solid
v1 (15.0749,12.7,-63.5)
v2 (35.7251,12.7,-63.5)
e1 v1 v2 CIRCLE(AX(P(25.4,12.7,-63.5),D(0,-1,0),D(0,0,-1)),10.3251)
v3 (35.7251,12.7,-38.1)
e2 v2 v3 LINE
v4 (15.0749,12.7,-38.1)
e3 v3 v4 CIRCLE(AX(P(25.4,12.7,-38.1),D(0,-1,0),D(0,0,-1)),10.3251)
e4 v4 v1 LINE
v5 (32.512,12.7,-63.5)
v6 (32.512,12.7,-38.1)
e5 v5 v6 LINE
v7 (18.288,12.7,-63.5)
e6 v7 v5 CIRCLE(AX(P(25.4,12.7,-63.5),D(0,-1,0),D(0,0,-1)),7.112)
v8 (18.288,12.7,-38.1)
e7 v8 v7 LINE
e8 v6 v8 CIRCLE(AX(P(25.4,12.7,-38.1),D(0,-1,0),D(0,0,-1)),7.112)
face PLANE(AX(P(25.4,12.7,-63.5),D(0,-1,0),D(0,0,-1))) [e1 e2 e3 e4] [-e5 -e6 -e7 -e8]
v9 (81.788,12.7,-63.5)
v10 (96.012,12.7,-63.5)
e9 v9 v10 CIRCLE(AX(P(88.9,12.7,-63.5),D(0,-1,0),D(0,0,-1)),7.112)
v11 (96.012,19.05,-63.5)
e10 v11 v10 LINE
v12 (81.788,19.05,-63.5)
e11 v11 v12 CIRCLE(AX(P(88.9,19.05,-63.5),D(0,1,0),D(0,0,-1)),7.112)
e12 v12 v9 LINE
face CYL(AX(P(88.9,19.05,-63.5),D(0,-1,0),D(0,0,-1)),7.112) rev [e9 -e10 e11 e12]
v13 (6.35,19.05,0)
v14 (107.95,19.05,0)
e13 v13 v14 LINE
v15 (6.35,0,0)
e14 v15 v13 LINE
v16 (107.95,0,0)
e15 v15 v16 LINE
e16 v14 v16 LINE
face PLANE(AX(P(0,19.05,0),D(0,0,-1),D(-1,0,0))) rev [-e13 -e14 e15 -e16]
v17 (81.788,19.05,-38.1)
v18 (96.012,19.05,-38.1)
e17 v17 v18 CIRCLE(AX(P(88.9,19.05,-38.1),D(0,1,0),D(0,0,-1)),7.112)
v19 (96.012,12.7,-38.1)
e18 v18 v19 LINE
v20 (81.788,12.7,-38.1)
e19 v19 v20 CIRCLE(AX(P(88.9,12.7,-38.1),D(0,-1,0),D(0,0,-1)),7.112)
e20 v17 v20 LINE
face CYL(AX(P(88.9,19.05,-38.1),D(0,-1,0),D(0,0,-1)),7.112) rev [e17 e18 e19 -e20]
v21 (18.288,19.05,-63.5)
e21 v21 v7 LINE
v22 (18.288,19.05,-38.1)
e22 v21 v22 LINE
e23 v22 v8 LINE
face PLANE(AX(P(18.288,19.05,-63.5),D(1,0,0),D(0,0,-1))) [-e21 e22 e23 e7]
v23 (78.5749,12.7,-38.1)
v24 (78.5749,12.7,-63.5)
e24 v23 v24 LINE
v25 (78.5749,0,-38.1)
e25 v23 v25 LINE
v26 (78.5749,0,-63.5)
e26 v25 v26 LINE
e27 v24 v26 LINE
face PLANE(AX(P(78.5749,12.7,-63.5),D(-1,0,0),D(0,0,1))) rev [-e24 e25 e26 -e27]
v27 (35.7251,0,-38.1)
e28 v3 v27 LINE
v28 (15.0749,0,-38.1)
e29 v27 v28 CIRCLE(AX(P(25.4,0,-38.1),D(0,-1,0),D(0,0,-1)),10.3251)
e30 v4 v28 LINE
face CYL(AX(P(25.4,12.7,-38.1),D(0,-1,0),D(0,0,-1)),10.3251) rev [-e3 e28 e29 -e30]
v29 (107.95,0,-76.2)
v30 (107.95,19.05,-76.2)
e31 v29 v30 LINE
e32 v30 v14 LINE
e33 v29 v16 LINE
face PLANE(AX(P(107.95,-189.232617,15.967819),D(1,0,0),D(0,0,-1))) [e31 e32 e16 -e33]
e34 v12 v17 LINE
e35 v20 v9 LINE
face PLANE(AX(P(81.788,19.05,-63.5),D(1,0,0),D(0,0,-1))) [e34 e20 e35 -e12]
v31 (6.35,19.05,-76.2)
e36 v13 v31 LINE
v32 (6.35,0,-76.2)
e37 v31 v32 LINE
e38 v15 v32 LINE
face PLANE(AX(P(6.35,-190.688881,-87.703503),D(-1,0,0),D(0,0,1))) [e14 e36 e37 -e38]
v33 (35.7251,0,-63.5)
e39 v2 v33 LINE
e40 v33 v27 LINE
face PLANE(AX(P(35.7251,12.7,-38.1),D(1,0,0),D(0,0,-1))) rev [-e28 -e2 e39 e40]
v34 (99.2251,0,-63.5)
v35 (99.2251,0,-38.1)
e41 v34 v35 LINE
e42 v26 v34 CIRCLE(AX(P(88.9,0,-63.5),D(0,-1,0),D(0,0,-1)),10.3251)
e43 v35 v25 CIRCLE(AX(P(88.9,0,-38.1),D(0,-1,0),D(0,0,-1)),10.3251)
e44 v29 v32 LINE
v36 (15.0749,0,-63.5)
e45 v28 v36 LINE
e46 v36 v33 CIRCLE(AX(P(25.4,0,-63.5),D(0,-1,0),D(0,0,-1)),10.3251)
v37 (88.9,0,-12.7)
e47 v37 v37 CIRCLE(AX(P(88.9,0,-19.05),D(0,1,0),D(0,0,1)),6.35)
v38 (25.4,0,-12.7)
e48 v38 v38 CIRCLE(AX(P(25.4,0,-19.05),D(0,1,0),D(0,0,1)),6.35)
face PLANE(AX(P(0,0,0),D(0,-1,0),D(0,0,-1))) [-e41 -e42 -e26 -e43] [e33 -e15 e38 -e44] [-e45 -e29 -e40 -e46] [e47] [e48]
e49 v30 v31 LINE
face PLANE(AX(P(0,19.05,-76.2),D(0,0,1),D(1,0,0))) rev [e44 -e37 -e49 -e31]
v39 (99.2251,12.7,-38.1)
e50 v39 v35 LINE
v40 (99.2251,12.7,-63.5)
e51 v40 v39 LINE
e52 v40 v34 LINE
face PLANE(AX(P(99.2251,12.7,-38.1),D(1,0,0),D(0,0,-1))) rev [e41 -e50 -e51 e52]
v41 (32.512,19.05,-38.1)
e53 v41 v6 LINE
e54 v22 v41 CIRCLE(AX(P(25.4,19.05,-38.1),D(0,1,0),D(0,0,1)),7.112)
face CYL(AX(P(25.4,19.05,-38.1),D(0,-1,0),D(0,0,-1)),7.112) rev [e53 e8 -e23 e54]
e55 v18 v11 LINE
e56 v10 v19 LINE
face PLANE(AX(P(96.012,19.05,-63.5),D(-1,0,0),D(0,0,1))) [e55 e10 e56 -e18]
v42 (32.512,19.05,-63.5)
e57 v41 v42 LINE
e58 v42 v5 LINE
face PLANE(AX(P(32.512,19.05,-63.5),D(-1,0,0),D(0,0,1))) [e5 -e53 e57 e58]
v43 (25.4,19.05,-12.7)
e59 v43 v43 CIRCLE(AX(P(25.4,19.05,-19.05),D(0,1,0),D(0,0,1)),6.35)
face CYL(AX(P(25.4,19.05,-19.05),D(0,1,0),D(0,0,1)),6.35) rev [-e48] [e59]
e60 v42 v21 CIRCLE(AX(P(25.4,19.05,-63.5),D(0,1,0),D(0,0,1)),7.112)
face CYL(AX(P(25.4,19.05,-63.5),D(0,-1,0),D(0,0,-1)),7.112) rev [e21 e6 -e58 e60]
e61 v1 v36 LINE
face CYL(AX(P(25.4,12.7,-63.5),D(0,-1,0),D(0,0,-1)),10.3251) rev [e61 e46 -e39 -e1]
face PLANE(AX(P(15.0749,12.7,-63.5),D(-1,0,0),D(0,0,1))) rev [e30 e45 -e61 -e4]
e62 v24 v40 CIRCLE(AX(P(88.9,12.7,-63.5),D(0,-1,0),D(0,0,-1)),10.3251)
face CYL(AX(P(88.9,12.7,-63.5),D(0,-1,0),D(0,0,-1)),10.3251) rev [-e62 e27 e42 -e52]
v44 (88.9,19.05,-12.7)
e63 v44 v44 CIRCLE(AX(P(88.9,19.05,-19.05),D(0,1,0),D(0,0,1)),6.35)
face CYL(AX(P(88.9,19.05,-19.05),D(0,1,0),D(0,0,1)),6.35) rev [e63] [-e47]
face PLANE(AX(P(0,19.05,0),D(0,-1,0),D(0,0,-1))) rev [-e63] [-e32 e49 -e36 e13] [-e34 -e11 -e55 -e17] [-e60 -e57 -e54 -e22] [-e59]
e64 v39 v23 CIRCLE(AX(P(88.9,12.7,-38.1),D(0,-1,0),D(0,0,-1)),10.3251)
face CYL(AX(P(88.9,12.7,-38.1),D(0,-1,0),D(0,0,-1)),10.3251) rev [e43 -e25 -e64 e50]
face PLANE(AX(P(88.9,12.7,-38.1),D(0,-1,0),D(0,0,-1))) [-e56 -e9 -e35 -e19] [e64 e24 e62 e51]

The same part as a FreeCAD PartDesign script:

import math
import FreeCAD as App
import Part
import Sketcher

V = App.Vector
Q = App.Units.Quantity

doc = App.newDocument("Part")
body = doc.addObject("PartDesign::Body", "Body")

sketch1 = body.newObject("Sketcher::SketchObject", "Sketch")
sketch1.AttachmentSupport = (doc.getObject("XZ_Plane"), [""])
sketch1.MapMode = "FlatFace"
sketch1.addGeometry([
    Part.LineSegment(V(0, -76, 0), V(0, 0, 0)),
    Part.LineSegment(V(0, 0, 0), V(114, 0, 0)),
    Part.LineSegment(V(114, 0, 0), V(114, -76, 0)),
    Part.LineSegment(V(114, -76, 0), V(0, -76, 0)),
    Part.ArcOfCircle(Part.Circle(V(89, -64, 0), V(0, 0, 1), 7), math.radians(180), math.radians(360)),
    Part.LineSegment(V(96, -64, 0), V(96, -38, 0)),
    Part.ArcOfCircle(Part.Circle(V(89, -38, 0), V(0, 0, 1), 7), math.radians(0), math.radians(180)),
    Part.LineSegment(V(82, -38, 0), V(82, -64, 0)),
    Part.LineSegment(V(18, -38, 0), V(18, -64, 0)),
    Part.ArcOfCircle(Part.Circle(V(25, -64, 0), V(0, 0, 1), 7), math.radians(180), math.radians(360)),
    Part.LineSegment(V(33, -64, 0), V(33, -38, 0)),
    Part.ArcOfCircle(Part.Circle(V(25, -38, 0), V(0, 0, 1), 7), math.radians(0), math.radians(180)),
], False)
sketch1.addConstraint([
    Sketcher.Constraint("Coincident", 0, 2, 1, 1),
    Sketcher.Constraint("Coincident", 1, 2, 2, 1),
    Sketcher.Constraint("Coincident", 2, 2, 3, 1),
    Sketcher.Constraint("Coincident", 3, 2, 0, 1),
    Sketcher.Constraint("Tangent", 4, 2, 5, 1),
    Sketcher.Constraint("Tangent", 5, 2, 6, 1),
    Sketcher.Constraint("Tangent", 6, 2, 7, 1),
    Sketcher.Constraint("Tangent", 7, 2, 4, 1),
    Sketcher.Constraint("Tangent", 8, 2, 9, 1),
    Sketcher.Constraint("Tangent", 9, 2, 10, 1),
    Sketcher.Constraint("Tangent", 10, 2, 11, 1),
    Sketcher.Constraint("Tangent", 11, 2, 8, 1),
    Sketcher.Constraint("Vertical", 0),
    Sketcher.Constraint("Horizontal", 1),
    Sketcher.Constraint("Vertical", 2),
    Sketcher.Constraint("Horizontal", 3),
    Sketcher.Constraint("Vertical", 5),
    Sketcher.Constraint("Vertical", 7),
    Sketcher.Constraint("Vertical", 8),
    Sketcher.Constraint("Vertical", 10),
    Sketcher.Constraint("Coincident", 0, 2, -1, 1),
    Sketcher.Constraint("Equal", 6, 9),
    Sketcher.Constraint("Horizontal", 4, 3, 9, 3),
    Sketcher.Constraint("Horizontal", 6, 3, 11, 3),
    Sketcher.Constraint("DistanceY", 0, 1, 0, 2, Q("3 in")),
    Sketcher.Constraint("DistanceY", 5, 1, 5, 2, Q("1 in")),
    Sketcher.Constraint("Radius", 4, Q("0.28 in")),
    Sketcher.Constraint("DistanceX", 1, 1, 1, 2, Q("4.5 in")),
    Sketcher.Constraint("DistanceX", -1, 1, 9, 3, Q("1 in")),
    Sketcher.Constraint("DistanceX", 6, 3, 1, 2, Q("1 in")),
    Sketcher.Constraint("DistanceY", 4, 3, -1, 1, Q("2.5 in")),
])
pad1 = body.newObject("PartDesign::Pad", "Pad")
pad1.Profile = sketch1
pad1.Length = Q("0.75 in")
pad1.Reversed = True

sketch2 = body.newObject("Sketcher::SketchObject", "Sketch001")
sketch2.AttachmentSupport = (doc.getObject("XZ_Plane"), [""])
sketch2.MapMode = "FlatFace"
sketch2.AttachmentOffset = App.Placement(V(0, 0, -0.75 * 25.4), App.Rotation())
sketch2.addGeometry([
    Part.Circle(V(25, -19, 0), V(0, 0, 1), 6),
    Part.Circle(V(89, -19, 0), V(0, 0, 1), 6),
], False)
sketch2.addConstraint([
    Sketcher.Constraint("Equal", 0, 1),
    Sketcher.Constraint("Horizontal", 0, 3, 1, 3),
    Sketcher.Constraint("Diameter", 0, Q("0.5 in")),
    Sketcher.Constraint("DistanceX", -1, 1, 0, 3, Q("1 in")),
    Sketcher.Constraint("DistanceX", -1, 1, 1, 3, Q("3.5 in")),
    Sketcher.Constraint("DistanceY", 0, 3, -1, 1, Q("0.75 in")),
])
doc.recompute()
hole = body.newObject("PartDesign::Hole", "Hole")
hole.Profile = sketch2
hole.ThreadType = "None"
hole.Diameter = Q("0.5 in")
hole.DepthType = "ThroughAll"
hole.Reversed = True

sketch3 = body.newObject("Sketcher::SketchObject", "Sketch002")
sketch3.AttachmentSupport = (doc.getObject("XZ_Plane"), [""])
sketch3.MapMode = "FlatFace"
sketch3.addGeometry([
    Part.LineSegment(V(15, -38, 0), V(15, -64, 0)),
    Part.ArcOfCircle(Part.Circle(V(25, -64, 0), V(0, 0, 1), 10), math.radians(180), math.radians(360)),
    Part.LineSegment(V(36, -64, 0), V(36, -38, 0)),
    Part.ArcOfCircle(Part.Circle(V(25, -38, 0), V(0, 0, 1), 10), math.radians(0), math.radians(180)),
], False)
sketch3.addConstraint([
    Sketcher.Constraint("Tangent", 0, 2, 1, 1),
    Sketcher.Constraint("Tangent", 1, 2, 2, 1),
    Sketcher.Constraint("Tangent", 2, 2, 3, 1),
    Sketcher.Constraint("Tangent", 3, 2, 0, 1),
    Sketcher.Constraint("Vertical", 0),
    Sketcher.Constraint("Vertical", 2),
    Sketcher.Constraint("DistanceY", 0, 2, 0, 1, Q("1 in")),
    Sketcher.Constraint("DistanceX", -1, 1, 1, 3, Q("1 in")),
    Sketcher.Constraint("DistanceY", 1, 3, -1, 1, Q("2.5 in")),
    Sketcher.Constraint("Radius", 1, Q("0.4065 in")),
])
pocket1 = body.newObject("PartDesign::Pocket", "Pocket")
pocket1.Profile = sketch3
pocket1.Length = Q("0.5 in")

sketch4 = body.newObject("Sketcher::SketchObject", "Sketch003")
sketch4.AttachmentSupport = (doc.getObject("XZ_Plane"), [""])
sketch4.MapMode = "FlatFace"
sketch4.addGeometry([
    Part.LineSegment(V(99, -64, 0), V(99, -38, 0)),
    Part.ArcOfCircle(Part.Circle(V(89, -38, 0), V(0, 0, 1), 10), math.radians(0), math.radians(180)),
    Part.LineSegment(V(79, -38, 0), V(79, -64, 0)),
    Part.ArcOfCircle(Part.Circle(V(89, -64, 0), V(0, 0, 1), 10), math.radians(180), math.radians(360)),
], False)
sketch4.addConstraint([
    Sketcher.Constraint("Tangent", 0, 2, 1, 1),
    Sketcher.Constraint("Tangent", 1, 2, 2, 1),
    Sketcher.Constraint("Tangent", 2, 2, 3, 1),
    Sketcher.Constraint("Tangent", 3, 2, 0, 1),
    Sketcher.Constraint("Vertical", 0),
    Sketcher.Constraint("Vertical", 2),
    Sketcher.Constraint("DistanceY", 0, 1, 0, 2, Q("1 in")),
    Sketcher.Constraint("DistanceX", -1, 1, 1, 3, Q("3.5 in")),
    Sketcher.Constraint("DistanceY", 1, 3, -1, 1, Q("1.5 in")),
    Sketcher.Constraint("Radius", 1, Q("0.4065 in")),
])
pocket2 = body.newObject("PartDesign::Pocket", "Pocket001")
pocket2.Profile = sketch4
pocket2.Length = Q("0.5 in")

sketch5 = body.newObject("Sketcher::SketchObject", "Sketch004")
sketch5.AttachmentSupport = (doc.getObject("XZ_Plane"), [""])
sketch5.MapMode = "FlatFace"
sketch5.addGeometry([
    Part.LineSegment(V(108, 0, 0), V(108, -76, 0)),
    Part.LineSegment(V(108, -76, 0), V(114, -76, 0)),
    Part.LineSegment(V(114, -76, 0), V(114, 0, 0)),
    Part.LineSegment(V(114, 0, 0), V(108, 0, 0)),
], False)
sketch5.addConstraint([
    Sketcher.Constraint("Coincident", 0, 2, 1, 1),
    Sketcher.Constraint("Coincident", 1, 2, 2, 1),
    Sketcher.Constraint("Coincident", 2, 2, 3, 1),
    Sketcher.Constraint("Coincident", 3, 2, 0, 1),
    Sketcher.Constraint("Vertical", 0),
    Sketcher.Constraint("Horizontal", 1),
    Sketcher.Constraint("Vertical", 2),
    Sketcher.Constraint("Horizontal", 3),
    Sketcher.Constraint("PointOnObject", 2, 2, -1),
    Sketcher.Constraint("DistanceY", 0, 2, 0, 1, Q("3 in")),
    Sketcher.Constraint("DistanceX", 1, 1, 1, 2, Q("0.25 in")),
    Sketcher.Constraint("DistanceX", -1, 1, 1, 2, Q("4.5 in")),
])
pocket3 = body.newObject("PartDesign::Pocket", "Pocket002")
pocket3.Profile = sketch5
pocket3.Type = "ThroughAll"
pocket3.Midplane = True

sketch6 = body.newObject("Sketcher::SketchObject", "Sketch005")
sketch6.AttachmentSupport = (doc.getObject("XZ_Plane"), [""])
sketch6.MapMode = "FlatFace"
sketch6.addGeometry([
    Part.LineSegment(V(0, 0, 0), V(0, -76, 0)),
    Part.LineSegment(V(0, -76, 0), V(6, -76, 0)),
    Part.LineSegment(V(6, -76, 0), V(6, 0, 0)),
    Part.LineSegment(V(6, 0, 0), V(0, 0, 0)),
], False)
sketch6.addConstraint([
    Sketcher.Constraint("Coincident", 0, 2, 1, 1),
    Sketcher.Constraint("Coincident", 1, 2, 2, 1),
    Sketcher.Constraint("Coincident", 2, 2, 3, 1),
    Sketcher.Constraint("Coincident", 3, 2, 0, 1),
    Sketcher.Constraint("Vertical", 0),
    Sketcher.Constraint("Horizontal", 1),
    Sketcher.Constraint("Vertical", 2),
    Sketcher.Constraint("Horizontal", 3),
    Sketcher.Constraint("Coincident", 3, 2, -1, 1),
    Sketcher.Constraint("DistanceY", 0, 2, 0, 1, Q("3 in")),
    Sketcher.Constraint("DistanceX", 1, 1, 1, 2, Q("0.25 in")),
])
pocket4 = body.newObject("PartDesign::Pocket", "Pocket003")
pocket4.Profile = sketch6
pocket4.Type = "ThroughAll"
pocket4.Midplane = True

doc.recompute()
